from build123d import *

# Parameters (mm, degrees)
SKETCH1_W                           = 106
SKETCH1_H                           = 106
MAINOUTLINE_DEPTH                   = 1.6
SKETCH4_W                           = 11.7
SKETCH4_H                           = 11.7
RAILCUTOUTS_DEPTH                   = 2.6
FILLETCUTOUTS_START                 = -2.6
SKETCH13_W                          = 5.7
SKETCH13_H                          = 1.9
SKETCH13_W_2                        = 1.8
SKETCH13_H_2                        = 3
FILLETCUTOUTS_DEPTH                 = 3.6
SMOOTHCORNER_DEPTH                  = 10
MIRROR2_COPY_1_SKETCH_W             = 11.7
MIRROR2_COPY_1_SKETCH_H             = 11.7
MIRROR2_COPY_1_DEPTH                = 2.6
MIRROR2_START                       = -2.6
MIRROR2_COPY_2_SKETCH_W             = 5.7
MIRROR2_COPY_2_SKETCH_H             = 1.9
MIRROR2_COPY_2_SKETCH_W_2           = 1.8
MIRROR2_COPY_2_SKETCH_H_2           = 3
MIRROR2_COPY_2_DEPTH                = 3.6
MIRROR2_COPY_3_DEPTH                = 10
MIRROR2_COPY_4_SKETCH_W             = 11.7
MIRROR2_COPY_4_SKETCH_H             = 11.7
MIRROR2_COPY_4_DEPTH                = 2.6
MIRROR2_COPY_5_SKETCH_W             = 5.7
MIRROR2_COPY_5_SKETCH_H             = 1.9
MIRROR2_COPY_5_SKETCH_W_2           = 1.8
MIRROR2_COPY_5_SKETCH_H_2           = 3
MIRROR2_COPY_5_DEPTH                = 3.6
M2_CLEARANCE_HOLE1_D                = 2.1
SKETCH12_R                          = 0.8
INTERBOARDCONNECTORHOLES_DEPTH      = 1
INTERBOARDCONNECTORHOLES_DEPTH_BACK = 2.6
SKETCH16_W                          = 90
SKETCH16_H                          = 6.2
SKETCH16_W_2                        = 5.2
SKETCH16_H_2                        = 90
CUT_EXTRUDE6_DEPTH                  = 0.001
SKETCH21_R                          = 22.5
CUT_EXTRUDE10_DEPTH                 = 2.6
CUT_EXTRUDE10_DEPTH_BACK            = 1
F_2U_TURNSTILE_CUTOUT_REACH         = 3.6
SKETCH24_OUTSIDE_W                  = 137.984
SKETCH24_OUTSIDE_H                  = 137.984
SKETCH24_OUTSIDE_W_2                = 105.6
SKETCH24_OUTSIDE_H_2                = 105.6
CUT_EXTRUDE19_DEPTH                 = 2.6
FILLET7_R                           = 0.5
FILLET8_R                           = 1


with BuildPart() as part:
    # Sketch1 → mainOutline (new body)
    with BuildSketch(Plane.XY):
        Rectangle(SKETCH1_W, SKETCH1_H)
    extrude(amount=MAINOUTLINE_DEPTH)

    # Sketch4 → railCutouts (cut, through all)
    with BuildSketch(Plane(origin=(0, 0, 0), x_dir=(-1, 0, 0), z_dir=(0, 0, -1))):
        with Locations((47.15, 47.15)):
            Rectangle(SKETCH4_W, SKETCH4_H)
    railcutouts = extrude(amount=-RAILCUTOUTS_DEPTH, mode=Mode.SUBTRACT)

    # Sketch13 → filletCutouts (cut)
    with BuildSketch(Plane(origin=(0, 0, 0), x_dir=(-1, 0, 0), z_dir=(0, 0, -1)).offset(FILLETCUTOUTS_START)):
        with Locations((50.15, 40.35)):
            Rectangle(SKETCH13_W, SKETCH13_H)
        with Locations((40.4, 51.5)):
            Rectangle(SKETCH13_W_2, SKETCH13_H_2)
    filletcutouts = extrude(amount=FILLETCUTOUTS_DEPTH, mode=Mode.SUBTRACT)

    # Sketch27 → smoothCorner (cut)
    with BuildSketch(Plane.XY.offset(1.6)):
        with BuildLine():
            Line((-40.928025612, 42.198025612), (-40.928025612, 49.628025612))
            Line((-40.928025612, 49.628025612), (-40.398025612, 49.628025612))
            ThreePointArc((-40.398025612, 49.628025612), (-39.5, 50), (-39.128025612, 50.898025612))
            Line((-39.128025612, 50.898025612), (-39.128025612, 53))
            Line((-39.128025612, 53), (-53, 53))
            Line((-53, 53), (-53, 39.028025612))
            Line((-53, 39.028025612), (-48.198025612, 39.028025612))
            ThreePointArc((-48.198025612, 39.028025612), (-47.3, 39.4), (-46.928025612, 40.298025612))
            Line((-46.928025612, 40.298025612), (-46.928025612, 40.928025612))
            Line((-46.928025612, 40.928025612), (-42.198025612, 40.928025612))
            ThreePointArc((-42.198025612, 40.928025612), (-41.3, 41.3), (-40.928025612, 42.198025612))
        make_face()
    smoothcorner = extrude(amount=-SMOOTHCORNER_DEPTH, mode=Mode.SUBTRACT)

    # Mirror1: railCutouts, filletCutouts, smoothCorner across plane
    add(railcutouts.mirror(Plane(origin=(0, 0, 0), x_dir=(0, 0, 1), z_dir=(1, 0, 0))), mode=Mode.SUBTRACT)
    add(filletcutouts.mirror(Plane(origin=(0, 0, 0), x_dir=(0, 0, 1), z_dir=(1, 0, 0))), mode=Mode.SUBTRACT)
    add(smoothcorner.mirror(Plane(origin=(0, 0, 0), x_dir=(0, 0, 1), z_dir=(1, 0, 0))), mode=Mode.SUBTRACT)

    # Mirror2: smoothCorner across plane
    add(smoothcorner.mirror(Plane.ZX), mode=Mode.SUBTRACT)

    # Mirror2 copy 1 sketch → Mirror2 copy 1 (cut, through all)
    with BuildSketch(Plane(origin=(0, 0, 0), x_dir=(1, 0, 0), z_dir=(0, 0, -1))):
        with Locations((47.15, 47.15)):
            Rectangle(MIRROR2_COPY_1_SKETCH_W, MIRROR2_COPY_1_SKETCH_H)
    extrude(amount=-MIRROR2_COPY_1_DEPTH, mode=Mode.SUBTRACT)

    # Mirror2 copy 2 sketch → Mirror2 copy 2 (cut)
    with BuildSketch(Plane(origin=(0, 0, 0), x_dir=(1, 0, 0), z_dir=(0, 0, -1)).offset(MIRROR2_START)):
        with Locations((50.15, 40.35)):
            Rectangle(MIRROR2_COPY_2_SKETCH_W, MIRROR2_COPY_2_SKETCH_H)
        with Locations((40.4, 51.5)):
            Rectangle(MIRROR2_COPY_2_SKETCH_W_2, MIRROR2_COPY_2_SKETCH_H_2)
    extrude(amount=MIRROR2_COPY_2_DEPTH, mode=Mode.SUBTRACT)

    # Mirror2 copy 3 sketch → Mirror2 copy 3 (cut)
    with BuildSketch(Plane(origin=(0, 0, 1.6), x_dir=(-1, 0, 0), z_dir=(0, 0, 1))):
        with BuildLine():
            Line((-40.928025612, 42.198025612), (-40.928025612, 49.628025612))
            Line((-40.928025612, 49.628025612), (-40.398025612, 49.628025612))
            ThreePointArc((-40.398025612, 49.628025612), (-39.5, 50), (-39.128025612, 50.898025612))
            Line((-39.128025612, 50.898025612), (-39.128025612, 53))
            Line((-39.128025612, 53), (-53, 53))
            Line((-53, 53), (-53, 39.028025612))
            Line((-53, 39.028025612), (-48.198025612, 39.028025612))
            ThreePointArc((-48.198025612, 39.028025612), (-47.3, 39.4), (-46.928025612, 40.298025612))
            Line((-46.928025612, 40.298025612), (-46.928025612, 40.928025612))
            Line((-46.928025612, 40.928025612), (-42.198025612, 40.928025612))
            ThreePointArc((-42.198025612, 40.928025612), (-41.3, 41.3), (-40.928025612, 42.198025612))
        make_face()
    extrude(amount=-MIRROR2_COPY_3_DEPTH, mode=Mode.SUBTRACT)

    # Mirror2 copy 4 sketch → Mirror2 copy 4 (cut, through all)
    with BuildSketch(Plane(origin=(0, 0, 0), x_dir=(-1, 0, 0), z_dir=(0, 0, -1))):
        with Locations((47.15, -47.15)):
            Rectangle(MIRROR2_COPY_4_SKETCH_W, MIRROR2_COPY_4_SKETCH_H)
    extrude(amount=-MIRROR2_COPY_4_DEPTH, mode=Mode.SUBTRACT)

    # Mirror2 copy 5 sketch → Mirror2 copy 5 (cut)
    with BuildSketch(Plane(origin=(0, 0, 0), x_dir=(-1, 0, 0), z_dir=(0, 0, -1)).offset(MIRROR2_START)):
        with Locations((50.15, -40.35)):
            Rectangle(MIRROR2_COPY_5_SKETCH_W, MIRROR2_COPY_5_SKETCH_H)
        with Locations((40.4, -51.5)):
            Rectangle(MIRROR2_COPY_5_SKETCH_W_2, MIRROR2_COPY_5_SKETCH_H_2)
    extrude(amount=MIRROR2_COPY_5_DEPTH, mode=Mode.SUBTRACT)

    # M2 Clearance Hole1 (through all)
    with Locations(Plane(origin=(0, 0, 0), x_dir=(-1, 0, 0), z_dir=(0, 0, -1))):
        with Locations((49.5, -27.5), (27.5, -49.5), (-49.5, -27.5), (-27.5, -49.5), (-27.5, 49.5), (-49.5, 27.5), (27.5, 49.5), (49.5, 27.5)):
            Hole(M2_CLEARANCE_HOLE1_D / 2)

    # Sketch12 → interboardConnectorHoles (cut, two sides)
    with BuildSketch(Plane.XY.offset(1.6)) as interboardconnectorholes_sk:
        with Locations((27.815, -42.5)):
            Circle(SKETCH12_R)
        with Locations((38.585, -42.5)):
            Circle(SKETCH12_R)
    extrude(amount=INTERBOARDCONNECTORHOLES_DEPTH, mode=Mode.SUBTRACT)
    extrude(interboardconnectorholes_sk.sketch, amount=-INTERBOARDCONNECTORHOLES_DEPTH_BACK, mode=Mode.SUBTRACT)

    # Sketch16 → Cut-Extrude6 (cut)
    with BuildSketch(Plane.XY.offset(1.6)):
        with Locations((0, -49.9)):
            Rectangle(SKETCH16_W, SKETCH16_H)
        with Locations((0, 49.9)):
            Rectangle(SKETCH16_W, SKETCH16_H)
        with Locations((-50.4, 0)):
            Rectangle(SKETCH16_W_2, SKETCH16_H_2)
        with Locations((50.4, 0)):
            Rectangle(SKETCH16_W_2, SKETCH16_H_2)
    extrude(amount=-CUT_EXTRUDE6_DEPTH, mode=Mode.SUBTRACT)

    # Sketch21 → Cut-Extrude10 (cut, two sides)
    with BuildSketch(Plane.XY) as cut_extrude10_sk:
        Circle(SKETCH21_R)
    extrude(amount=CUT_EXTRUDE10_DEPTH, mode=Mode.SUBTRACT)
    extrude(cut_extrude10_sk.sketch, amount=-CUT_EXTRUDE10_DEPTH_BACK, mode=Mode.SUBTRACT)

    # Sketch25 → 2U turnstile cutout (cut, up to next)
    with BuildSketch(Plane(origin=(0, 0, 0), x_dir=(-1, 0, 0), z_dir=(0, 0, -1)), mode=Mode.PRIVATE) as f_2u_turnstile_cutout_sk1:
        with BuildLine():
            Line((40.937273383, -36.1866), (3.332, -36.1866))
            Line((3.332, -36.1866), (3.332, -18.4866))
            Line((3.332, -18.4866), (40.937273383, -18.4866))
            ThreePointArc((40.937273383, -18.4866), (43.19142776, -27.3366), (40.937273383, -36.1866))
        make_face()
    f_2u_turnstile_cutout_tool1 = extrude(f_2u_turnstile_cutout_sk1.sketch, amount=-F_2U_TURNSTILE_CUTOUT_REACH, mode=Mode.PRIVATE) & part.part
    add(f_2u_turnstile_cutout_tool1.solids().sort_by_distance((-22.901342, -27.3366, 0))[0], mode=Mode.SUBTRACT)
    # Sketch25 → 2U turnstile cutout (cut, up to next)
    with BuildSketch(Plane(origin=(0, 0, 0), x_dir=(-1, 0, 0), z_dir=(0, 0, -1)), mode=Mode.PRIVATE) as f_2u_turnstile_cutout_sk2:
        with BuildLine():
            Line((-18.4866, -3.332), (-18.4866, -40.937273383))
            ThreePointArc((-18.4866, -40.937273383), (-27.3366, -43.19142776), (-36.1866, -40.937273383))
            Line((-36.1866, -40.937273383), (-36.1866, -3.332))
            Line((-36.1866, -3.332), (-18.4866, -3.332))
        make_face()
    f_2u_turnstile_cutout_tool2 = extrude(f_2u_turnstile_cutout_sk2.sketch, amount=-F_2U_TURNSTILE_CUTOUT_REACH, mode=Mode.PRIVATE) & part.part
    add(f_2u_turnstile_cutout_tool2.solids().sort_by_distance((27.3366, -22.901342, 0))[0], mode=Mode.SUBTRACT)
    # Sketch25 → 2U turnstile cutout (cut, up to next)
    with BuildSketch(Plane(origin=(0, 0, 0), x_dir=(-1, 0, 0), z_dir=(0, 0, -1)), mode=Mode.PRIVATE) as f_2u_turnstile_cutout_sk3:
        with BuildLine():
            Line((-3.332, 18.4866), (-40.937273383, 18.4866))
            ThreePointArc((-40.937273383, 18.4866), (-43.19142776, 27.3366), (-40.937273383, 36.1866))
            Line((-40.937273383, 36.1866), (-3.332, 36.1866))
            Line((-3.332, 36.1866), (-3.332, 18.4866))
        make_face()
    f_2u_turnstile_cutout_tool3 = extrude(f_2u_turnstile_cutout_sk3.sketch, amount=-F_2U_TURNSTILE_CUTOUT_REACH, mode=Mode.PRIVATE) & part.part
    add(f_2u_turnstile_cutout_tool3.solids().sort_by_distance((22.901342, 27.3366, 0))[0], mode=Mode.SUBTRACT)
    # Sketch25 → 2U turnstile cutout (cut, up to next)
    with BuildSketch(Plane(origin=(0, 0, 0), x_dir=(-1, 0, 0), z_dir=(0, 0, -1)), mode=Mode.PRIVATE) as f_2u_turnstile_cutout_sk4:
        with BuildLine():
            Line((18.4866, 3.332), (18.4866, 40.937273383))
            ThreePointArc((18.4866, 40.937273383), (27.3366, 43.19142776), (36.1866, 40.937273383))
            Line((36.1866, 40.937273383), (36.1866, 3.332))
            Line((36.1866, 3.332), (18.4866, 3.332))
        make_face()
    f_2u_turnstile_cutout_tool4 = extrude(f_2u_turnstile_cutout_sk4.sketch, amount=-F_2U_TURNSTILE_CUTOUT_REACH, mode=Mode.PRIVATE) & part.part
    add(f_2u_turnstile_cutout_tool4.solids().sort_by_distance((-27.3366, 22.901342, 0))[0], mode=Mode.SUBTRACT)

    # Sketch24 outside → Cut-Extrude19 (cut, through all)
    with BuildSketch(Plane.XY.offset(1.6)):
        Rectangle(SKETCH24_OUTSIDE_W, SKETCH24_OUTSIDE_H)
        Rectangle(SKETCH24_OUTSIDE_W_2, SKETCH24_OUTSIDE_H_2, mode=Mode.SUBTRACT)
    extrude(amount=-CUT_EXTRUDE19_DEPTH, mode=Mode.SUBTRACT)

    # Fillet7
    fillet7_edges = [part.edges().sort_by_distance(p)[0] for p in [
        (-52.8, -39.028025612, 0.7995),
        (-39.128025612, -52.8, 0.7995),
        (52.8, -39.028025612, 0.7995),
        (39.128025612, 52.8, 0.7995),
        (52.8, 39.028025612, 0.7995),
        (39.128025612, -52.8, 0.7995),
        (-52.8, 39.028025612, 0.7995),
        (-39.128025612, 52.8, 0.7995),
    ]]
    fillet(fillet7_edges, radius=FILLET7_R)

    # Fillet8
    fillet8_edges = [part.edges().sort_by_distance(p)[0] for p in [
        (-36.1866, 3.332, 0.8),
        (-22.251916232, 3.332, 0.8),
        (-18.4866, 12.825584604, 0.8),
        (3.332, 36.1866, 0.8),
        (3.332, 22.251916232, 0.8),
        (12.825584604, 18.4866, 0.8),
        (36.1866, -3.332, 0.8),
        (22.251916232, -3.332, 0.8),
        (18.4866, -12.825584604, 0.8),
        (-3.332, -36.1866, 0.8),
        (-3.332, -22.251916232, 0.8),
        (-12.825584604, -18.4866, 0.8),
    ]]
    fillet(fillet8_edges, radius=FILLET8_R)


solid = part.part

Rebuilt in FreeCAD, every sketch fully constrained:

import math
import FreeCAD as App
import Part
import Sketcher

V = App.Vector
Q = App.Units.Quantity


def edges_at(feature, points):
    """Names of the edges that pass closest to the given points."""
    edges = feature.Shape.Edges
    near = lambda p: min(range(len(edges)), key=lambda i: edges[i].distToShape(Part.Vertex(*p))[0])
    return sorted({f"Edge{near(p) + 1}" for p in points})


def add_polygon(sketch, points):
    """Adds a closed chain of lines whose ends are joined by coincident constraints."""
    first, n = sketch.GeometryCount, len(points)
    for a, b in zip(points, points[1:] + points[:1]):
        sketch.addGeometry(Part.LineSegment(App.Vector(*a, 0), App.Vector(*b, 0)), False)
    for i in range(n):
        sketch.addConstraint(Sketcher.Constraint("Coincident", first + i, 2, first + (i + 1) % n, 1))

doc = App.newDocument("Part")
params = doc.addObject("Spreadsheet::Sheet", "Params")
for row, (alias, value) in enumerate([
    ("sketch1_width", "106 mm"),
    ("pad1_length", "1.6 mm"),
    ("sketch2_width", "11.7 mm"),
    ("sketch3_height", "3 mm"),
    ("sketch3_width", "5.7 mm"),
    ("sketch3_width2", "1.8 mm"),
    ("sketch3_height2", "1.9 mm"),
    ("pocket2_length", "3.6 mm"),
    ("sketch4_radius", "1.27 mm"),
    ("sketch4_width", "0.53 mm"),
    ("sketch4_height", "7.43 mm"),
    ("sketch4_height2", "0.63 mm"),
    ("pocket3_length", "10 mm"),
    ("sketch5_width", "11.7 mm"),
    ("sketch6_height", "3 mm"),
    ("sketch6_width", "5.7 mm"),
    ("sketch6_width2", "1.8 mm"),
    ("sketch6_height2", "1.9 mm"),
    ("pocket5_length", "3.6 mm"),
    ("sketch7_radius", "1.27 mm"),
    ("sketch7_width", "0.53 mm"),
    ("sketch7_height", "7.43 mm"),
    ("sketch7_height2", "0.63 mm"),
    ("pocket6_length", "10 mm"),
    ("sketch8_width", "11.7 mm"),
    ("sketch9_height", "3 mm"),
    ("sketch9_width", "5.7 mm"),
    ("sketch9_width2", "1.8 mm"),
    ("sketch9_height2", "1.9 mm"),
    ("pocket8_length", "3.6 mm"),
    ("sketch10_diameter", "2.1 mm"),
    ("hole_diameter", "2.1 mm"),
    ("sketch11_diameter", "1.6 mm"),
    ("sketch12_width", "90 mm"),
    ("sketch12_width2", "5.2 mm"),
    ("sketch12_height", "6.2 mm"),
    ("pocket10_length", "0.001 mm"),
    ("sketch13_diameter", "45 mm"),
    ("sketch14_radius", "18.5 mm"),
    ("sketch14_height", "17.7 mm"),
    ("sketch15_radius", "18.5 mm"),
    ("sketch15_width", "17.7 mm"),
    ("sketch16_radius", "18.5 mm"),
    ("sketch16_height", "17.7 mm"),
    ("sketch17_radius", "18.5 mm"),
    ("sketch17_width", "17.7 mm"),
    ("sketch18_width", "105.6 mm"),
    ("fillet_radius", "0.5 mm"),
    ("fillet2_radius", "1 mm"),
], start=1):
    params.set(f"A{row}", alias)
    params.set(f"B{row}", "=" + value)
    params.setAlias(f"B{row}", alias)

body = doc.addObject("PartDesign::Body", "Body")

# Sketch on XY plane
sketch1 = body.newObject("Sketcher::SketchObject", "Sketch")
sketch1.AttachmentSupport = (doc.getObject("XY_Plane"), [""])
sketch1.MapMode = "FlatFace"
add_polygon(sketch1, [(-53, 53), (-53, -53), (53, -53), (53, 53)])  # lines 0-3
sketch1.addConstraint([
    Sketcher.Constraint("Vertical", 0),
    Sketcher.Constraint("Horizontal", 1),
    Sketcher.Constraint("Vertical", 2),
    Sketcher.Constraint("Horizontal", 3),
    Sketcher.Constraint("Symmetric", 0, 2, 2, 2, -1, 1),
    Sketcher.Constraint("Equal", 3, 0),
    Sketcher.Constraint("DistanceX", 1, 1, 1, 2, Q("106 mm")),
])
sketch1.setExpression("Constraints[10]", "Params.sketch1_width")
pad1 = body.newObject("PartDesign::Pad", "Pad")
pad1.Profile = sketch1
pad1.setExpression("Length", "Params.pad1_length")

# Sketch on XY plane
sketch2 = body.newObject("Sketcher::SketchObject", "Sketch001")
sketch2.AttachmentSupport = (doc.getObject("XY_Plane"), [""])
sketch2.MapMode = "FlatFace"
add_polygon(sketch2, [(-41, 53), (-41, 41), (-53, 41), (-53, 53)])  # lines 0-3
sketch2.addConstraint([
    Sketcher.Constraint("Vertical", 0),
    Sketcher.Constraint("Horizontal", 1),
    Sketcher.Constraint("Vertical", 2),
    Sketcher.Constraint("Horizontal", 3),
    Sketcher.Constraint("Equal", 3, 0),
    Sketcher.Constraint("DistanceX", 1, 2, 1, 1, Q("11.7 mm")),
    Sketcher.Constraint("DistanceX", 1, 2, -1, 1, Q("53 mm")),
    Sketcher.Constraint("DistanceY", -1, 1, 2, 2, Q("53 mm")),
])
sketch2.setExpression("Constraints[9]", "Params.sketch2_width")
pocket1 = body.newObject("PartDesign::Pocket", "Pocket")
pocket1.Profile = sketch2
pocket1.Type = "ThroughAll"
pocket1.Reversed = True

# Sketch on XY plane
sketch3 = body.newObject("Sketcher::SketchObject", "Sketch002")
sketch3.AttachmentSupport = (doc.getObject("XY_Plane"), [""])
sketch3.MapMode = "FlatFace"
sketch3.AttachmentOffset = App.Placement(V(0, 0, 2.6), App.Rotation())
add_polygon(sketch3, [(-47.3, 41.3), (-47.3, 39.4), (-53, 39.4), (-53, 41.3)])  # lines 0-3
add_polygon(sketch3, [(-39.5, 53), (-39.5, 50), (-41.3, 50), (-41.3, 53)])  # lines 4-7
sketch3.addConstraint([
    Sketcher.Constraint("Vertical", 0),
    Sketcher.Constraint("Horizontal", 1),
    Sketcher.Constraint("Vertical", 2),
    Sketcher.Constraint("Horizontal", 3),
    Sketcher.Constraint("Vertical", 4),
    Sketcher.Constraint("Horizontal", 5),
    Sketcher.Constraint("Vertical", 6),
    Sketcher.Constraint("Horizontal", 7),
    Sketcher.Constraint("DistanceY", 4, 2, 4, 1, Q("3 mm")),
    Sketcher.Constraint("DistanceX", 1, 2, 1, 1, Q("5.7 mm")),
    Sketcher.Constraint("DistanceX", 5, 2, 5, 1, Q("1.8 mm")),
    Sketcher.Constraint("DistanceY", 0, 2, 0, 1, Q("1.9 mm")),
    Sketcher.Constraint("DistanceX", 1, 2, -1, 1, Q("53 mm")),
    Sketcher.Constraint("DistanceY", -1, 1, 4, 2, Q("50 mm")),
    Sketcher.Constraint("DistanceX", 3, 2, 5, 2, Q("6 mm")),
    Sketcher.Constraint("DistanceY", -1, 1, 0, 2, Q("39.4 mm")),
])
sketch3.setExpression("Constraints[16]", "Params.sketch3_height")
sketch3.setExpression("Constraints[17]", "Params.sketch3_width")
sketch3.setExpression("Constraints[18]", "Params.sketch3_width2")
sketch3.setExpression("Constraints[19]", "Params.sketch3_height2")
pocket2 = body.newObject("PartDesign::Pocket", "Pocket001")
pocket2.Profile = sketch3
pocket2.setExpression("Length", "Params.pocket2_length")

# Sketch on XY plane
sketch4 = body.newObject("Sketcher::SketchObject", "Sketch003")
sketch4.AttachmentSupport = (doc.getObject("XY_Plane"), [""])
sketch4.MapMode = "FlatFace"
sketch4.AttachmentOffset = App.Placement(V(0, 0, 1.6), App.Rotation())
sketch4.addGeometry([
    Part.LineSegment(V(-40.9, 42.2, 0), V(-40.9, 49.6, 0)),  # 0
    Part.LineSegment(V(-40.9, 49.6, 0), V(-40.4, 49.6, 0)),  # 1
    Part.ArcOfCircle(Part.Circle(V(-40.4, 50.9, 0), V(0, 0, 1), 1.3), math.radians(-90), math.radians(0)),  # 2
    Part.LineSegment(V(-39.1, 50.9, 0), V(-39.1, 53, 0)),  # 3
    Part.LineSegment(V(-39.1, 53, 0), V(-53, 53, 0)),  # 4
    Part.LineSegment(V(-53, 53, 0), V(-53, 39, 0)),  # 5
    Part.LineSegment(V(-53, 39, 0), V(-48.2, 39, 0)),  # 6
    Part.ArcOfCircle(Part.Circle(V(-48.2, 40.3, 0), V(0, 0, 1), 1.3), math.radians(-90), math.radians(0)),  # 7
    Part.LineSegment(V(-46.9, 40.3, 0), V(-46.9, 40.9, 0)),  # 8
    Part.LineSegment(V(-46.9, 40.9, 0), V(-42.2, 40.9, 0)),  # 9
    Part.ArcOfCircle(Part.Circle(V(-42.2, 42.2, 0), V(0, 0, 1), 1.3), math.radians(-90), math.radians(0)),  # 10
], False)
sketch4.addConstraint([
    Sketcher.Constraint("Coincident", 0, 2, 1, 1),
    Sketcher.Constraint("Tangent", 1, 2, 2, 1),
    Sketcher.Constraint("Tangent", 2, 2, 3, 1),
    Sketcher.Constraint("Coincident", 3, 2, 4, 1),
    Sketcher.Constraint("Coincident", 4, 2, 5, 1),
    Sketcher.Constraint("Coincident", 5, 2, 6, 1),
    Sketcher.Constraint("Tangent", 6, 2, 7, 1),
    Sketcher.Constraint("Tangent", 7, 2, 8, 1),
    Sketcher.Constraint("Coincident", 8, 2, 9, 1),
    Sketcher.Constraint("Tangent", 9, 2, 10, 1),
    Sketcher.Constraint("Tangent", 10, 2, 0, 1),
    Sketcher.Constraint("Vertical", 0),
    Sketcher.Constraint("Horizontal", 1),
    Sketcher.Constraint("Vertical", 3),
    Sketcher.Constraint("Horizontal", 4),
    Sketcher.Constraint("Vertical", 5),
    Sketcher.Constraint("Horizontal", 6),
    Sketcher.Constraint("Vertical", 8),
    Sketcher.Constraint("Horizontal", 9),
    Sketcher.Constraint("Equal", 2, 7),
    Sketcher.Constraint("Equal", 7, 10),
    Sketcher.Constraint("Radius", 2, Q("1.27 mm")),
    Sketcher.Constraint("DistanceY", -1, 1, 3, 2, Q("53 mm")),
    Sketcher.Constraint("DistanceX", 4, 2, -1, 1, Q("53 mm")),
    Sketcher.Constraint("DistanceX", 7, 3, 10, 3, Q("6 mm")),
    Sketcher.Constraint("DistanceX", 1, 1, 1, 2, Q("0.53 mm")),
    Sketcher.Constraint("DistanceY", 0, 1, 0, 2, Q("7.43 mm")),
    Sketcher.Constraint("DistanceY", 8, 1, 8, 2, Q("0.63 mm")),
    Sketcher.Constraint("DistanceX", 4, 2, 4, 1, Q("13.871974 mm")),
    Sketcher.Constraint("DistanceY", 3, 1, 3, 2, Q("2.101974 mm")),
])
sketch4.setExpression("Constraints[21]", "Params.sketch4_radius")
sketch4.setExpression("Constraints[25]", "Params.sketch4_width")
sketch4.setExpression("Constraints[26]", "Params.sketch4_height")
sketch4.setExpression("Constraints[27]", "Params.sketch4_height2")
pocket3 = body.newObject("PartDesign::Pocket", "Pocket002")
pocket3.Profile = sketch4
pocket3.setExpression("Length", "Params.pocket3_length")
doc.recompute()

mirrored = body.newObject("PartDesign::Mirrored", "Mirrored")
mirrored.Originals = [pocket1, pocket2, pocket3]
mirrored.MirrorPlane = (doc.getObject("YZ_Plane"), [""])
body.Tip = mirrored
doc.recompute()

mirrored2 = body.newObject("PartDesign::Mirrored", "Mirrored001")
mirrored2.Originals = [pocket3]
mirrored2.MirrorPlane = (doc.getObject("XZ_Plane"), [""])
body.Tip = mirrored2

# Sketch on XY plane
sketch5 = body.newObject("Sketcher::SketchObject", "Sketch004")
sketch5.AttachmentSupport = (doc.getObject("XY_Plane"), [""])
sketch5.MapMode = "FlatFace"
add_polygon(sketch5, [(41, -53), (41, -41), (53, -41), (53, -53)])  # lines 0-3
sketch5.addConstraint([
    Sketcher.Constraint("Vertical", 0),
    Sketcher.Constraint("Horizontal", 1),
    Sketcher.Constraint("Vertical", 2),
    Sketcher.Constraint("Horizontal", 3),
    Sketcher.Constraint("Equal", 3, 0),
    Sketcher.Constraint("DistanceX", 1, 1, 1, 2, Q("11.7 mm")),
    Sketcher.Constraint("DistanceX", -1, 1, 1, 2, Q("53 mm")),
    Sketcher.Constraint("DistanceY", 2, 2, -1, 1, Q("53 mm")),
])
sketch5.setExpression("Constraints[9]", "Params.sketch5_width")
pocket4 = body.newObject("PartDesign::Pocket", "Pocket003")
pocket4.Profile = sketch5
pocket4.Type = "ThroughAll"
pocket4.Reversed = True

# Sketch on XY plane
sketch6 = body.newObject("Sketcher::SketchObject", "Sketch005")
sketch6.AttachmentSupport = (doc.getObject("XY_Plane"), [""])
sketch6.MapMode = "FlatFace"
sketch6.AttachmentOffset = App.Placement(V(0, 0, 2.6), App.Rotation())
add_polygon(sketch6, [(47.3, -41.3), (47.3, -39.4), (53, -39.4), (53, -41.3)])  # lines 0-3
add_polygon(sketch6, [(39.5, -53), (39.5, -50), (41.3, -50), (41.3, -53)])  # lines 4-7
sketch6.addConstraint([
    Sketcher.Constraint("Vertical", 0),
    Sketcher.Constraint("Horizontal", 1),
    Sketcher.Constraint("Vertical", 2),
    Sketcher.Constraint("Horizontal", 3),
    Sketcher.Constraint("Vertical", 4),
    Sketcher.Constraint("Horizontal", 5),
    Sketcher.Constraint("Vertical", 6),
    Sketcher.Constraint("Horizontal", 7),
    Sketcher.Constraint("DistanceY", 4, 1, 4, 2, Q("3 mm")),
    Sketcher.Constraint("DistanceX", 1, 1, 1, 2, Q("5.7 mm")),
    Sketcher.Constraint("DistanceX", 5, 1, 5, 2, Q("1.8 mm")),
    Sketcher.Constraint("DistanceY", 0, 1, 0, 2, Q("1.9 mm")),
    Sketcher.Constraint("DistanceX", -1, 1, 1, 2, Q("53 mm")),
    Sketcher.Constraint("DistanceY", 4, 2, -1, 1, Q("50 mm")),
    Sketcher.Constraint("DistanceX", 5, 2, 3, 2, Q("6 mm")),
    Sketcher.Constraint("DistanceY", 0, 2, -1, 1, Q("39.4 mm")),
])
sketch6.setExpression("Constraints[16]", "Params.sketch6_height")
sketch6.setExpression("Constraints[17]", "Params.sketch6_width")
sketch6.setExpression("Constraints[18]", "Params.sketch6_width2")
sketch6.setExpression("Constraints[19]", "Params.sketch6_height2")
pocket5 = body.newObject("PartDesign::Pocket", "Pocket004")
pocket5.Profile = sketch6
pocket5.setExpression("Length", "Params.pocket5_length")

# Sketch on XY plane
sketch7 = body.newObject("Sketcher::SketchObject", "Sketch006")
sketch7.AttachmentSupport = (doc.getObject("XY_Plane"), [""])
sketch7.MapMode = "FlatFace"
sketch7.AttachmentOffset = App.Placement(V(0, 0, 1.6), App.Rotation())
sketch7.addGeometry([
    Part.LineSegment(V(40.9, -42.2, 0), V(40.9, -49.6, 0)),  # 0
    Part.LineSegment(V(40.9, -49.6, 0), V(40.4, -49.6, 0)),  # 1
    Part.ArcOfCircle(Part.Circle(V(40.4, -50.9, 0), V(0, 0, 1), 1.3), math.radians(90), math.radians(180)),  # 2
    Part.LineSegment(V(39.1, -50.9, 0), V(39.1, -53, 0)),  # 3
    Part.LineSegment(V(39.1, -53, 0), V(53, -53, 0)),  # 4
    Part.LineSegment(V(53, -53, 0), V(53, -39, 0)),  # 5
    Part.LineSegment(V(53, -39, 0), V(48.2, -39, 0)),  # 6
    Part.ArcOfCircle(Part.Circle(V(48.2, -40.3, 0), V(0, 0, 1), 1.3), math.radians(90), math.radians(180)),  # 7
    Part.LineSegment(V(46.9, -40.3, 0), V(46.9, -40.9, 0)),  # 8
    Part.LineSegment(V(46.9, -40.9, 0), V(42.2, -40.9, 0)),  # 9
    Part.ArcOfCircle(Part.Circle(V(42.2, -42.2, 0), V(0, 0, 1), 1.3), math.radians(90), math.radians(180)),  # 10
], False)
sketch7.addConstraint([
    Sketcher.Constraint("Coincident", 0, 2, 1, 1),
    Sketcher.Constraint("Tangent", 1, 2, 2, 1),
    Sketcher.Constraint("Tangent", 2, 2, 3, 1),
    Sketcher.Constraint("Coincident", 3, 2, 4, 1),
    Sketcher.Constraint("Coincident", 4, 2, 5, 1),
    Sketcher.Constraint("Coincident", 5, 2, 6, 1),
    Sketcher.Constraint("Tangent", 6, 2, 7, 1),
    Sketcher.Constraint("Tangent", 7, 2, 8, 1),
    Sketcher.Constraint("Coincident", 8, 2, 9, 1),
    Sketcher.Constraint("Tangent", 9, 2, 10, 1),
    Sketcher.Constraint("Tangent", 10, 2, 0, 1),
    Sketcher.Constraint("Vertical", 0),
    Sketcher.Constraint("Horizontal", 1),
    Sketcher.Constraint("Vertical", 3),
    Sketcher.Constraint("Horizontal", 4),
    Sketcher.Constraint("Vertical", 5),
    Sketcher.Constraint("Horizontal", 6),
    Sketcher.Constraint("Vertical", 8),
    Sketcher.Constraint("Horizontal", 9),
    Sketcher.Constraint("Equal", 2, 7),
    Sketcher.Constraint("Equal", 7, 10),
    Sketcher.Constraint("Radius", 2, Q("1.27 mm")),
    Sketcher.Constraint("DistanceY", 3, 2, -1, 1, Q("53 mm")),
    Sketcher.Constraint("DistanceX", -1, 1, 4, 2, Q("53 mm")),
    Sketcher.Constraint("DistanceX", 10, 3, 7, 3, Q("6 mm")),
    Sketcher.Constraint("DistanceX", 1, 2, 1, 1, Q("0.53 mm")),
    Sketcher.Constraint("DistanceY", 0, 2, 0, 1, Q("7.43 mm")),
    Sketcher.Constraint("DistanceY", 8, 2, 8, 1, Q("0.63 mm")),
    Sketcher.Constraint("DistanceX", 4, 1, 4, 2, Q("13.871974 mm")),
    Sketcher.Constraint("DistanceY", 3, 2, 3, 1, Q("2.101974 mm")),
])
sketch7.setExpression("Constraints[21]", "Params.sketch7_radius")
sketch7.setExpression("Constraints[25]", "Params.sketch7_width")
sketch7.setExpression("Constraints[26]", "Params.sketch7_height")
sketch7.setExpression("Constraints[27]", "Params.sketch7_height2")
pocket6 = body.newObject("PartDesign::Pocket", "Pocket005")
pocket6.Profile = sketch7
pocket6.setExpression("Length", "Params.pocket6_length")

# Sketch on XY plane
sketch8 = body.newObject("Sketcher::SketchObject", "Sketch007")
sketch8.AttachmentSupport = (doc.getObject("XY_Plane"), [""])
sketch8.MapMode = "FlatFace"
add_polygon(sketch8, [(-41, -41), (-41, -53), (-53, -53), (-53, -41)])  # lines 0-3
sketch8.addConstraint([
    Sketcher.Constraint("Vertical", 0),
    Sketcher.Constraint("Horizontal", 1),
    Sketcher.Constraint("Vertical", 2),
    Sketcher.Constraint("Horizontal", 3),
    Sketcher.Constraint("Equal", 3, 0),
    Sketcher.Constraint("DistanceX", 1, 2, 1, 1, Q("11.7 mm")),
    Sketcher.Constraint("DistanceY", 0, 2, -1, 1, Q("53 mm")),
    Sketcher.Constraint("DistanceX", 1, 2, -1, 1, Q("53 mm")),
])
sketch8.setExpression("Constraints[9]", "Params.sketch8_width")
pocket7 = body.newObject("PartDesign::Pocket", "Pocket006")
pocket7.Profile = sketch8
pocket7.Type = "ThroughAll"
pocket7.Reversed = True

# Sketch on XY plane
sketch9 = body.newObject("Sketcher::SketchObject", "Sketch008")
sketch9.AttachmentSupport = (doc.getObject("XY_Plane"), [""])
sketch9.MapMode = "FlatFace"
sketch9.AttachmentOffset = App.Placement(V(0, 0, 2.6), App.Rotation())
add_polygon(sketch9, [(-47.3, -39.4), (-47.3, -41.3), (-53, -41.3), (-53, -39.4)])  # lines 0-3
add_polygon(sketch9, [(-39.5, -50), (-39.5, -53), (-41.3, -53), (-41.3, -50)])  # lines 4-7
sketch9.addConstraint([
    Sketcher.Constraint("Vertical", 0),
    Sketcher.Constraint("Horizontal", 1),
    Sketcher.Constraint("Vertical", 2),
    Sketcher.Constraint("Horizontal", 3),
    Sketcher.Constraint("Vertical", 4),
    Sketcher.Constraint("Horizontal", 5),
    Sketcher.Constraint("Vertical", 6),
    Sketcher.Constraint("Horizontal", 7),
    Sketcher.Constraint("DistanceY", 4, 2, 4, 1, Q("3 mm")),
    Sketcher.Constraint("DistanceX", 1, 2, 1, 1, Q("5.7 mm")),
    Sketcher.Constraint("DistanceX", 5, 2, 5, 1, Q("1.8 mm")),
    Sketcher.Constraint("DistanceY", 0, 2, 0, 1, Q("1.9 mm")),
    Sketcher.Constraint("DistanceX", 1, 2, -1, 1, Q("53 mm")),
    Sketcher.Constraint("DistanceY", 4, 2, -1, 1, Q("53 mm")),
    Sketcher.Constraint("DistanceX", 0, 2, 5, 2, Q("6 mm")),
    Sketcher.Constraint("DistanceY", 0, 2, -1, 1, Q("41.3 mm")),
])
sketch9.setExpression("Constraints[16]", "Params.sketch9_height")
sketch9.setExpression("Constraints[17]", "Params.sketch9_width")
sketch9.setExpression("Constraints[18]", "Params.sketch9_width2")
sketch9.setExpression("Constraints[19]", "Params.sketch9_height2")
pocket8 = body.newObject("PartDesign::Pocket", "Pocket007")
pocket8.Profile = sketch9
pocket8.setExpression("Length", "Params.pocket8_length")

# Sketch on XY plane
sketch10 = body.newObject("Sketcher::SketchObject", "Sketch009")
sketch10.AttachmentSupport = (doc.getObject("XY_Plane"), [""])
sketch10.MapMode = "FlatFace"
sketch10.addGeometry([
    Part.Circle(V(-49.5, -27.5, 0), V(0, 0, 1), 1.1),  # 0
    Part.Circle(V(-27.5, -49.5, 0), V(0, 0, 1), 1.1),  # 1
    Part.Circle(V(49.5, -27.5, 0), V(0, 0, 1), 1.1),  # 2
    Part.Circle(V(27.5, -49.5, 0), V(0, 0, 1), 1.1),  # 3
    Part.Circle(V(27.5, 49.5, 0), V(0, 0, 1), 1.1),  # 4
    Part.Circle(V(49.5, 27.5, 0), V(0, 0, 1), 1.1),  # 5
    Part.Circle(V(-27.5, 49.5, 0), V(0, 0, 1), 1.1),  # 6
    Part.Circle(V(-49.5, 27.5, 0), V(0, 0, 1), 1.1),  # 7
], False)
sketch10.addConstraint([
    Sketcher.Constraint("Equal", 0, 1),
    Sketcher.Constraint("Equal", 1, 2),
    Sketcher.Constraint("Equal", 2, 3),
    Sketcher.Constraint("Equal", 3, 4),
    Sketcher.Constraint("Equal", 4, 5),
    Sketcher.Constraint("Equal", 5, 6),
    Sketcher.Constraint("Equal", 6, 7),
    Sketcher.Constraint("Symmetric", 1, 3, 4, 3, -1, 1),
    Sketcher.Constraint("Symmetric", 0, 3, 5, 3, -1, 1),
    Sketcher.Constraint("Symmetric", 3, 3, 6, 3, -1, 1),
    Sketcher.Constraint("Symmetric", 2, 3, 7, 3, -1, 1),
    Sketcher.Constraint("Symmetric", 0, 3, 2, 3, -2),
    Sketcher.Constraint("Symmetric", 1, 3, 3, 3, -2),
    Sketcher.Constraint("Diameter", 0, Q("2.1 mm")),
    Sketcher.Constraint("DistanceX", 0, 3, 1, 3, Q("22 mm")),
    Sketcher.Constraint("DistanceY", 1, 3, 0, 3, Q("22 mm")),
    Sketcher.Constraint("DistanceX", 1, 3, 2, 3, Q("77 mm")),
    Sketcher.Constraint("DistanceY", 2, 3, 4, 3, Q("77 mm")),
])
sketch10.setExpression("Constraints[13]", "Params.sketch10_diameter")
doc.recompute()
hole = body.newObject("PartDesign::Hole", "Hole")
hole.Profile = sketch10
hole.ThreadType = "None"
hole.setExpression("Diameter", "Params.hole_diameter")
hole.DepthType = "ThroughAll"
hole.Reversed = True

# Sketch on XY plane
sketch11 = body.newObject("Sketcher::SketchObject", "Sketch010")
sketch11.AttachmentSupport = (doc.getObject("XY_Plane"), [""])
sketch11.MapMode = "FlatFace"
sketch11.AttachmentOffset = App.Placement(V(0, 0, 1.6), App.Rotation())
sketch11.addGeometry([
    Part.Circle(V(27.8, -42.5, 0), V(0, 0, 1), 0.8),
    Part.Circle(V(38.6, -42.5, 0), V(0, 0, 1), 0.8),
], False)
sketch11.addConstraint([
    Sketcher.Constraint("Equal", 0, 1),
    Sketcher.Constraint("Horizontal", 0, 3, 1, 3),
    Sketcher.Constraint("Diameter", 0, Q("1.6 mm")),
    Sketcher.Constraint("DistanceY", 0, 3, -1, 1, Q("42.5 mm")),
    Sketcher.Constraint("DistanceX", 0, 3, 1, 3, Q("10.77 mm")),
    Sketcher.Constraint("DistanceX", -1, 1, 0, 3, Q("27.815 mm")),
])
sketch11.setExpression("Constraints[2]", "Params.sketch11_diameter")
pocket9 = body.newObject("PartDesign::Pocket", "Pocket008")
pocket9.Profile = sketch11
pocket9.Type = "ThroughAll"
pocket9.Midplane = True

# Sketch on XY plane
sketch12 = body.newObject("Sketcher::SketchObject", "Sketch011")
sketch12.AttachmentSupport = (doc.getObject("XY_Plane"), [""])
sketch12.MapMode = "FlatFace"
sketch12.AttachmentOffset = App.Placement(V(0, 0, 1.6), App.Rotation())
add_polygon(sketch12, [(-45, -47), (-45, -53), (45, -53), (45, -47)])  # lines 0-3
add_polygon(sketch12, [(-45, 53), (-45, 47), (45, 47), (45, 53)])  # lines 4-7
add_polygon(sketch12, [(-53, 45), (-53, -45), (-48, -45), (-48, 45)])  # lines 8-11
add_polygon(sketch12, [(48, 45), (48, -45), (53, -45), (53, 45)])  # lines 12-15
sketch12.addConstraint([
    Sketcher.Constraint("Vertical", 0),
    Sketcher.Constraint("Horizontal", 1),
    Sketcher.Constraint("Vertical", 2),
    Sketcher.Constraint("Horizontal", 3),
    Sketcher.Constraint("Vertical", 4),
    Sketcher.Constraint("Horizontal", 5),
    Sketcher.Constraint("Vertical", 6),
    Sketcher.Constraint("Horizontal", 7),
    Sketcher.Constraint("Vertical", 8),
    Sketcher.Constraint("Horizontal", 9),
    Sketcher.Constraint("Vertical", 10),
    Sketcher.Constraint("Horizontal", 11),
    Sketcher.Constraint("Vertical", 12),
    Sketcher.Constraint("Horizontal", 13),
    Sketcher.Constraint("Vertical", 14),
    Sketcher.Constraint("Horizontal", 15),
    Sketcher.Constraint("Symmetric", 2, 2, 4, 2, -1, 1),
    Sketcher.Constraint("Symmetric", 0, 2, 6, 2, -1, 1),
    Sketcher.Constraint("Symmetric", 10, 2, 12, 2, -1, 1),
    Sketcher.Constraint("Symmetric", 8, 2, 14, 2, -1, 1),
    Sketcher.Constraint("Horizontal", 9, 2, 12, 2),
    Sketcher.Constraint("Vertical", 3, 2, 4, 2),
    Sketcher.Constraint("Equal", 7, 8),
    Sketcher.Constraint("DistanceX", 1, 1, 1, 2, Q("90 mm")),
    Sketcher.Constraint("DistanceX", 9, 1, 9, 2, Q("5.2 mm")),
    Sketcher.Constraint("DistanceY", 0, 2, 0, 1, Q("6.2 mm")),
    Sketcher.Constraint("DistanceY", 0, 2, -1, 1, Q("53 mm")),
    Sketcher.Constraint("DistanceX", 8, 2, -1, 1, Q("53 mm")),
])
sketch12.setExpression("Constraints[39]", "Params.sketch12_width")
sketch12.setExpression("Constraints[40]", "Params.sketch12_width2")
sketch12.setExpression("Constraints[41]", "Params.sketch12_height")
pocket10 = body.newObject("PartDesign::Pocket", "Pocket009")
pocket10.Profile = sketch12
pocket10.setExpression("Length", "Params.pocket10_length")

# Sketch on XY plane
sketch13 = body.newObject("Sketcher::SketchObject", "Sketch012")
sketch13.AttachmentSupport = (doc.getObject("XY_Plane"), [""])
sketch13.MapMode = "FlatFace"
sketch13.addGeometry(Part.Circle(V(0, 0, 0), V(0, 0, 1), 22), False)
sketch13.addConstraint([
    Sketcher.Constraint("Coincident", 0, 3, -1, 1),
    Sketcher.Constraint("Diameter", 0, Q("45 mm")),
])
sketch13.setExpression("Constraints[1]", "Params.sketch13_diameter")
pocket11 = body.newObject("PartDesign::Pocket", "Pocket010")
pocket11.Profile = sketch13
pocket11.Type = "ThroughAll"
pocket11.Midplane = True

# Sketch on XY plane
sketch14 = body.newObject("Sketcher::SketchObject", "Sketch013")
sketch14.AttachmentSupport = (doc.getObject("XY_Plane"), [""])
sketch14.MapMode = "FlatFace"
sketch14.addGeometry([
    Part.LineSegment(V(-3, -36, 0), V(-41, -36, 0)),
    Part.ArcOfCircle(Part.Circle(V(-25, -27, 0), V(0, 0, 1), 19), math.radians(151), math.radians(209)),
    Part.LineSegment(V(-41, -18, 0), V(-3, -18, 0)),
    Part.LineSegment(V(-3, -18, 0), V(-3, -36, 0)),
], False)
sketch14.addConstraint([
    Sketcher.Constraint("Coincident", 0, 2, 1, 2),
    Sketcher.Constraint("Coincident", 1, 1, 2, 1),
    Sketcher.Constraint("Coincident", 2, 2, 3, 1),
    Sketcher.Constraint("Coincident", 3, 2, 0, 1),
    Sketcher.Constraint("Horizontal", 0),
    Sketcher.Constraint("Horizontal", 2),
    Sketcher.Constraint("Vertical", 3),
    Sketcher.Constraint("Vertical", 0, 2, 1, 1),
    Sketcher.Constraint("Radius", 1, Q("18.5 mm")),
    Sketcher.Constraint("DistanceY", 3, 2, 3, 1, Q("17.7 mm")),
    Sketcher.Constraint("DistanceX", 2, 2, -1, 1, Q("3.332 mm")),
    Sketcher.Constraint("DistanceY", 1, 3, -1, 1, Q("27.3366 mm")),
    Sketcher.Constraint("DistanceX", 0, 2, 0, 1, Q("37.605273 mm")),
])
sketch14.setExpression("Constraints[8]", "Params.sketch14_radius")
sketch14.setExpression("Constraints[9]", "Params.sketch14_height")
pocket12 = body.newObject("PartDesign::Pocket", "Pocket011")
pocket12.Profile = sketch14
pocket12.Type = "UpToFirst"
pocket12.Reversed = True

# Sketch on XY plane
sketch15 = body.newObject("Sketcher::SketchObject", "Sketch014")
sketch15.AttachmentSupport = (doc.getObject("XY_Plane"), [""])
sketch15.MapMode = "FlatFace"
sketch15.addGeometry([
    Part.LineSegment(V(18, -41, 0), V(18, -3, 0)),
    Part.LineSegment(V(18, -3, 0), V(36, -3, 0)),
    Part.LineSegment(V(36, -3, 0), V(36, -41, 0)),
    Part.ArcOfCircle(Part.Circle(V(27, -25, 0), V(0, 0, 1), 19), math.radians(-119), math.radians(-61)),
], False)
sketch15.addConstraint([
    Sketcher.Constraint("Coincident", 0, 2, 1, 1),
    Sketcher.Constraint("Coincident", 1, 2, 2, 1),
    Sketcher.Constraint("Coincident", 2, 2, 3, 2),
    Sketcher.Constraint("Coincident", 3, 1, 0, 1),
    Sketcher.Constraint("Vertical", 0),
    Sketcher.Constraint("Horizontal", 1),
    Sketcher.Constraint("Vertical", 2),
    Sketcher.Constraint("Horizontal", 2, 2, 3, 1),
    Sketcher.Constraint("Radius", 3, Q("18.5 mm")),
    Sketcher.Constraint("DistanceX", 1, 1, 1, 2, Q("17.7 mm")),
    Sketcher.Constraint("DistanceY", 0, 2, -1, 1, Q("3.332 mm")),
    Sketcher.Constraint("DistanceX", -1, 1, 3, 3, Q("27.3366 mm")),
    Sketcher.Constraint("DistanceY", 0, 1, 0, 2, Q("37.605273 mm")),
])
sketch15.setExpression("Constraints[8]", "Params.sketch15_radius")
sketch15.setExpression("Constraints[9]", "Params.sketch15_width")
pocket13 = body.newObject("PartDesign::Pocket", "Pocket012")
pocket13.Profile = sketch15
pocket13.Type = "UpToFirst"
pocket13.Reversed = True

# Sketch on XY plane
sketch16 = body.newObject("Sketcher::SketchObject", "Sketch015")
sketch16.AttachmentSupport = (doc.getObject("XY_Plane"), [""])
sketch16.MapMode = "FlatFace"
sketch16.addGeometry([
    Part.LineSegment(V(41, 18, 0), V(3, 18, 0)),
    Part.LineSegment(V(3, 18, 0), V(3, 36, 0)),
    Part.LineSegment(V(3, 36, 0), V(41, 36, 0)),
    Part.ArcOfCircle(Part.Circle(V(25, 27, 0), V(0, 0, 1), 19), math.radians(-29), math.radians(29)),
], False)
sketch16.addConstraint([
    Sketcher.Constraint("Coincident", 0, 2, 1, 1),
    Sketcher.Constraint("Coincident", 1, 2, 2, 1),
    Sketcher.Constraint("Coincident", 2, 2, 3, 2),
    Sketcher.Constraint("Coincident", 3, 1, 0, 1),
    Sketcher.Constraint("Horizontal", 0),
    Sketcher.Constraint("Vertical", 1),
    Sketcher.Constraint("Horizontal", 2),
    Sketcher.Constraint("Vertical", 2, 2, 3, 1),
    Sketcher.Constraint("Radius", 3, Q("18.5 mm")),
    Sketcher.Constraint("DistanceY", 1, 1, 1, 2, Q("17.7 mm")),
    Sketcher.Constraint("DistanceX", -1, 1, 0, 2, Q("3.332 mm")),
    Sketcher.Constraint("DistanceY", -1, 1, 3, 3, Q("27.3366 mm")),
    Sketcher.Constraint("DistanceX", 0, 2, 0, 1, Q("37.605273 mm")),
])
sketch16.setExpression("Constraints[8]", "Params.sketch16_radius")
sketch16.setExpression("Constraints[9]", "Params.sketch16_height")
pocket14 = body.newObject("PartDesign::Pocket", "Pocket013")
pocket14.Profile = sketch16
pocket14.Type = "UpToFirst"
pocket14.Reversed = True

# Sketch on XY plane
sketch17 = body.newObject("Sketcher::SketchObject", "Sketch016")
sketch17.AttachmentSupport = (doc.getObject("XY_Plane"), [""])
sketch17.MapMode = "FlatFace"
sketch17.addGeometry([
    Part.LineSegment(V(-18, 41, 0), V(-18, 3, 0)),
    Part.LineSegment(V(-18, 3, 0), V(-36, 3, 0)),
    Part.LineSegment(V(-36, 3, 0), V(-36, 41, 0)),
    Part.ArcOfCircle(Part.Circle(V(-27, 25, 0), V(0, 0, 1), 19), math.radians(61), math.radians(119)),
], False)
sketch17.addConstraint([
    Sketcher.Constraint("Coincident", 0, 2, 1, 1),
    Sketcher.Constraint("Coincident", 1, 2, 2, 1),
    Sketcher.Constraint("Coincident", 2, 2, 3, 2),
    Sketcher.Constraint("Coincident", 3, 1, 0, 1),
    Sketcher.Constraint("Vertical", 0),
    Sketcher.Constraint("Horizontal", 1),
    Sketcher.Constraint("Vertical", 2),
    Sketcher.Constraint("Horizontal", 2, 2, 3, 1),
    Sketcher.Constraint("Radius", 3, Q("18.5 mm")),
    Sketcher.Constraint("DistanceX", 1, 2, 1, 1, Q("17.7 mm")),
    Sketcher.Constraint("DistanceY", -1, 1, 0, 2, Q("3.332 mm")),
    Sketcher.Constraint("DistanceX", 3, 3, -1, 1, Q("27.3366 mm")),
    Sketcher.Constraint("DistanceY", 0, 2, 0, 1, Q("37.605273 mm")),
])
sketch17.setExpression("Constraints[8]", "Params.sketch17_radius")
sketch17.setExpression("Constraints[9]", "Params.sketch17_width")
pocket15 = body.newObject("PartDesign::Pocket", "Pocket014")
pocket15.Profile = sketch17
pocket15.Type = "UpToFirst"
pocket15.Reversed = True

# Sketch on XY plane
sketch18 = body.newObject("Sketcher::SketchObject", "Sketch017")
sketch18.AttachmentSupport = (doc.getObject("XY_Plane"), [""])
sketch18.MapMode = "FlatFace"
sketch18.AttachmentOffset = App.Placement(V(0, 0, 1.6), App.Rotation())
add_polygon(sketch18, [(-69, 69), (-69, -69), (69, -69), (69, 69)])  # lines 0-3
add_polygon(sketch18, [(53, -53), (-53, -53), (-53, 53), (53, 53)])  # lines 4-7
sketch18.addConstraint([
    Sketcher.Constraint("Vertical", 0),
    Sketcher.Constraint("Horizontal", 1),
    Sketcher.Constraint("Vertical", 2),
    Sketcher.Constraint("Horizontal", 3),
    Sketcher.Constraint("Horizontal", 4),
    Sketcher.Constraint("Vertical", 5),
    Sketcher.Constraint("Horizontal", 6),
    Sketcher.Constraint("Vertical", 7),
    Sketcher.Constraint("Symmetric", 0, 2, 2, 2, -1, 1),
    Sketcher.Constraint("Symmetric", 4, 2, 6, 2, -1, 1),
    Sketcher.Constraint("Equal", 3, 0),
    Sketcher.Constraint("Equal", 6, 5),
    Sketcher.Constraint("DistanceX", 4, 2, 4, 1, Q("105.6 mm")),
    Sketcher.Constraint("DistanceX", 1, 1, 1, 2, Q("137.984 mm")),
])
sketch18.setExpression("Constraints[20]", "Params.sketch18_width")
pocket16 = body.newObject("PartDesign::Pocket", "Pocket015")
pocket16.Profile = sketch18
pocket16.Type = "ThroughAll"
doc.recompute()

fillet = body.newObject("PartDesign::Fillet", "Fillet")
fillet.Base = (pocket16, edges_at(pocket16, [
    (-52.8, -39.028, 0.799),
    (-39.128, -52.8, 0.799),
    (52.8, -39.028, 0.799),
    (39.128, 52.8, 0.799),
    (52.8, 39.028, 0.799),
    (39.128, -52.8, 0.799),
    (-52.8, 39.028, 0.799),
    (-39.128, 52.8, 0.799),
]))
fillet.setExpression("Radius", "Params.fillet_radius")
doc.recompute()

fillet2 = body.newObject("PartDesign::Fillet", "Fillet001")
fillet2.Base = (fillet, edges_at(fillet, [
    (-36.187, 3.332, 0.8),
    (-22.252, 3.332, 0.8),
    (-18.487, 12.826, 0.8),
    (3.332, 36.187, 0.8),
    (3.332, 22.252, 0.8),
    (12.826, 18.487, 0.8),
    (36.187, -3.332, 0.8),
    (22.252, -3.332, 0.8),
    (18.487, -12.826, 0.8),
    (-3.332, -36.187, 0.8),
    (-3.332, -22.252, 0.8),
    (-12.826, -18.487, 0.8),
]))
fillet2.setExpression("Radius", "Params.fillet2_radius")

doc.recompute()
